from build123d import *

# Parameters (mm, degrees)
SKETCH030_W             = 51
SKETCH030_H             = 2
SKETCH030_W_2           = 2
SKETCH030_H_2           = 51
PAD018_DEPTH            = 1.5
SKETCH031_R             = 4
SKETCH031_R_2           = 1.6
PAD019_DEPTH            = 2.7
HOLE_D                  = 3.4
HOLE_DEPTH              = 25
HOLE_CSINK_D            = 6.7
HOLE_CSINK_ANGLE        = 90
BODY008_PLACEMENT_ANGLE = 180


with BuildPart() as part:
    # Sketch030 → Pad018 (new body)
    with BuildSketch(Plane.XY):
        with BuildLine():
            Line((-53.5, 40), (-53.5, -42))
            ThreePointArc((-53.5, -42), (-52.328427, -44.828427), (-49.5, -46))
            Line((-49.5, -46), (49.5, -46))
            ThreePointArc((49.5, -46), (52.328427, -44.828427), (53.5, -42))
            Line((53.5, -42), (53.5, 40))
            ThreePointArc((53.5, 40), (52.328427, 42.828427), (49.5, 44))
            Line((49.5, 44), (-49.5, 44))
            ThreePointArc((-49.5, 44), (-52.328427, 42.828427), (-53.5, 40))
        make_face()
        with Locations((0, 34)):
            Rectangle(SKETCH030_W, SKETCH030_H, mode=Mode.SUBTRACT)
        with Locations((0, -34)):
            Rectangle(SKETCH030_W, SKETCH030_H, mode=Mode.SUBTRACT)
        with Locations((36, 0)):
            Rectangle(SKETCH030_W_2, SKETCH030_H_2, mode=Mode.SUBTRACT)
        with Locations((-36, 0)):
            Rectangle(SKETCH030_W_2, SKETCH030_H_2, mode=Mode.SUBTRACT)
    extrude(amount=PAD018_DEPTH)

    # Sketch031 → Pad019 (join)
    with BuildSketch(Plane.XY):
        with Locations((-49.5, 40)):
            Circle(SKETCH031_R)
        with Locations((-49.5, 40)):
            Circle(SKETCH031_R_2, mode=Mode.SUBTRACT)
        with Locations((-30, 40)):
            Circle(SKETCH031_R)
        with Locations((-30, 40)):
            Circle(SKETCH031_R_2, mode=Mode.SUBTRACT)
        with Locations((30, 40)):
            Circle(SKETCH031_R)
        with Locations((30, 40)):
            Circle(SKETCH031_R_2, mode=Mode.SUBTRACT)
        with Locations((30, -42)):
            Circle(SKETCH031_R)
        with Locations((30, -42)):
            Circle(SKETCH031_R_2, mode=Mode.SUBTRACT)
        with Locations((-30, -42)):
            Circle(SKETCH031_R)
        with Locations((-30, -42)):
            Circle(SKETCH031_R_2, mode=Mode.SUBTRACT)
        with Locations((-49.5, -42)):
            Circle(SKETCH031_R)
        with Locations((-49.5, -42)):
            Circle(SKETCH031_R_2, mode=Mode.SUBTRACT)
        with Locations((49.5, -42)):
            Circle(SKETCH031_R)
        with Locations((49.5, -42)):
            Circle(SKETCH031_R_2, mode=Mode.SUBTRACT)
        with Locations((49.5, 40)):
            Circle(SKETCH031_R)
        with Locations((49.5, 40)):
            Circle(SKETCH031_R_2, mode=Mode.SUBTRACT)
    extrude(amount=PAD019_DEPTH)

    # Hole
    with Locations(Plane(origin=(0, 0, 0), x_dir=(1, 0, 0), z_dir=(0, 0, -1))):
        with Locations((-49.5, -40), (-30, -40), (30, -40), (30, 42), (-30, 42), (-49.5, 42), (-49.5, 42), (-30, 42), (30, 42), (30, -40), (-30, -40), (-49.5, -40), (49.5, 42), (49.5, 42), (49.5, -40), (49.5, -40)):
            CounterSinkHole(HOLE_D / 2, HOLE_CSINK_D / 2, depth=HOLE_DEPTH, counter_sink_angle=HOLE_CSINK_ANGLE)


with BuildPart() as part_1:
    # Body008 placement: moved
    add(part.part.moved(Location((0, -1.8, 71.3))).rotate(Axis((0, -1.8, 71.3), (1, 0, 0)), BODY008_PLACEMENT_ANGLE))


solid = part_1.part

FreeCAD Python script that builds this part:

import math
import FreeCAD as App
import Part
import Sketcher

V = App.Vector
Q = App.Units.Quantity


def add_polygon(sketch, points):
    """Adds a closed chain of lines whose ends are joined by coincident constraints."""
    first, n = sketch.GeometryCount, len(points)
    for a, b in zip(points, points[1:] + points[:1]):
        sketch.addGeometry(Part.LineSegment(App.Vector(*a, 0), App.Vector(*b, 0)), False)
    for i in range(n):
        sketch.addConstraint(Sketcher.Constraint("Coincident", first + i, 2, first + (i + 1) % n, 1))

doc = App.newDocument("Part")
body = doc.addObject("PartDesign::Body", "Body")

# Sketch on XY plane
sketch1 = body.newObject("Sketcher::SketchObject", "Sketch")
sketch1.AttachmentSupport = (doc.getObject("XY_Plane"), [""])
sketch1.MapMode = "FlatFace"
sketch1.addGeometry(Part.LineSegment(V(-53.5, 40, 0), V(-53.5, -42, 0)), False)  # 0
sketch1.addGeometry(Part.ArcOfCircle(Part.Circle(V(-49.5, -42, 0), V(0, 0, 1), 4), math.radians(-180), math.radians(-90)), False)  # 1
sketch1.addGeometry(Part.LineSegment(V(-49.5, -46, 0), V(49.5, -46, 0)), False)  # 2
sketch1.addGeometry(Part.ArcOfCircle(Part.Circle(V(49.5, -42, 0), V(0, 0, 1), 4), math.radians(-90), math.radians(0)), False)  # 3
sketch1.addGeometry(Part.LineSegment(V(53.5, -42, 0), V(53.5, 40, 0)), False)  # 4
sketch1.addGeometry(Part.ArcOfCircle(Part.Circle(V(49.5, 40, 0), V(0, 0, 1), 4), math.radians(0), math.radians(90)), False)  # 5
sketch1.addGeometry(Part.LineSegment(V(49.5, 44, 0), V(-49.5, 44, 0)), False)  # 6
sketch1.addGeometry(Part.ArcOfCircle(Part.Circle(V(-49.5, 40, 0), V(0, 0, 1), 4), math.radians(90), math.radians(180)), False)  # 7
add_polygon(sketch1, [(25.5, -35), (-25.5, -35), (-25.5, -33), (25.5, -33)])  # lines 8-11
add_polygon(sketch1, [(-35, -25.5), (-37, -25.5), (-37, 25.5), (-35, 25.5)])  # lines 12-15
add_polygon(sketch1, [(37, -25.5), (35, -25.5), (35, 25.5), (37, 25.5)])  # lines 16-19
add_polygon(sketch1, [(25.5, 33), (-25.5, 33), (-25.5, 35), (25.5, 35)])  # lines 20-23
sketch1.addConstraint([
    Sketcher.Constraint("Tangent", 0, 2, 1, 1),
    Sketcher.Constraint("Tangent", 1, 2, 2, 1),
    Sketcher.Constraint("Tangent", 2, 2, 3, 1),
    Sketcher.Constraint("Tangent", 3, 2, 4, 1),
    Sketcher.Constraint("Tangent", 4, 2, 5, 1),
    Sketcher.Constraint("Tangent", 5, 2, 6, 1),
    Sketcher.Constraint("Tangent", 6, 2, 7, 1),
    Sketcher.Constraint("Tangent", 7, 2, 0, 1),
    Sketcher.Constraint("Vertical", 0),
    Sketcher.Constraint("Horizontal", 2),
    Sketcher.Constraint("Vertical", 4),
    Sketcher.Constraint("Horizontal", 6),
    Sketcher.Constraint("Horizontal", 8),
    Sketcher.Constraint("Vertical", 9),
    Sketcher.Constraint("Horizontal", 10),
    Sketcher.Constraint("Vertical", 11),
    Sketcher.Constraint("Horizontal", 12),
    Sketcher.Constraint("Vertical", 13),
    Sketcher.Constraint("Horizontal", 14),
    Sketcher.Constraint("Vertical", 15),
    Sketcher.Constraint("Horizontal", 16),
    Sketcher.Constraint("Vertical", 17),
    Sketcher.Constraint("Horizontal", 18),
    Sketcher.Constraint("Vertical", 19),
    Sketcher.Constraint("Horizontal", 20),
    Sketcher.Constraint("Vertical", 21),
    Sketcher.Constraint("Horizontal", 22),
    Sketcher.Constraint("Vertical", 23),
    Sketcher.Constraint("Equal", 1, 3),
    Sketcher.Constraint("Equal", 3, 5),
    Sketcher.Constraint("Equal", 5, 7),
    Sketcher.Constraint("Symmetric", 14, 2, 16, 2, -1, 1),
    Sketcher.Constraint("Symmetric", 12, 2, 18, 2, -1, 1),
    Sketcher.Constraint("Symmetric", 10, 2, 20, 2, -1, 1),
    Sketcher.Constraint("Symmetric", 8, 2, 22, 2, -1, 1),
    Sketcher.Constraint("Horizontal", 15, 2, 16, 2),
    Sketcher.Constraint("Vertical", 9, 2, 20, 2),
    Sketcher.Constraint("Equal", 18, 9),
    Sketcher.Constraint("Equal", 22, 13),
    Sketcher.Constraint("Radius", 1, Q("4 mm")),
    Sketcher.Constraint("DistanceX", 2, 1, 2, 2, Q("99 mm")),
    Sketcher.Constraint("DistanceX", 8, 2, 8, 1, Q("51 mm")),
    Sketcher.Constraint("DistanceX", 12, 2, 12, 1, Q("2 mm")),
    Sketcher.Constraint("DistanceY", 0, 2, 0, 1, Q("82 mm")),
    Sketcher.Constraint("DistanceY", 1, 3, -1, 1, Q("42 mm")),
    Sketcher.Constraint("DistanceY", 8, 2, -1, 1, Q("35 mm")),
    Sketcher.Constraint("DistanceX", 12, 2, -1, 1, Q("37 mm")),
    Sketcher.Constraint("DistanceX", 1, 3, 8, 2, Q("24 mm")),
])
pad1 = body.newObject("PartDesign::Pad", "Pad")
pad1.Profile = sketch1
pad1.Length = 1.5

# Sketch on XY plane
sketch2 = body.newObject("Sketcher::SketchObject", "Sketch001")
sketch2.AttachmentSupport = (doc.getObject("XY_Plane"), [""])
sketch2.MapMode = "FlatFace"
sketch2.addGeometry([
    Part.Circle(V(-49.5, 40, 0), V(0, 0, 1), 4),  # 0
    Part.Circle(V(-49.5, 40, 0), V(0, 0, 1), 1.6),  # 1
    Part.Circle(V(-30, 40, 0), V(0, 0, 1), 4),  # 2
    Part.Circle(V(-30, 40, 0), V(0, 0, 1), 1.6),  # 3
    Part.Circle(V(30, 40, 0), V(0, 0, 1), 4),  # 4
    Part.Circle(V(30, 40, 0), V(0, 0, 1), 1.6),  # 5
    Part.Circle(V(30, -42, 0), V(0, 0, 1), 4),  # 6
    Part.Circle(V(30, -42, 0), V(0, 0, 1), 1.6),  # 7
    Part.Circle(V(-30, -42, 0), V(0, 0, 1), 4),  # 8
    Part.Circle(V(-30, -42, 0), V(0, 0, 1), 1.6),  # 9
    Part.Circle(V(-49.5, -42, 0), V(0, 0, 1), 4),  # 10
    Part.Circle(V(-49.5, -42, 0), V(0, 0, 1), 1.6),  # 11
    Part.Circle(V(49.5, -42, 0), V(0, 0, 1), 4),  # 12
    Part.Circle(V(49.5, -42, 0), V(0, 0, 1), 1.6),  # 13
    Part.Circle(V(49.5, 40, 0), V(0, 0, 1), 4),  # 14
    Part.Circle(V(49.5, 40, 0), V(0, 0, 1), 1.6),  # 15
], False)
sketch2.addConstraint([
    Sketcher.Constraint("Coincident", 1, 3, 0, 3),
    Sketcher.Constraint("Coincident", 3, 3, 2, 3),
    Sketcher.Constraint("Coincident", 5, 3, 4, 3),
    Sketcher.Constraint("Coincident", 7, 3, 6, 3),
    Sketcher.Constraint("Coincident", 9, 3, 8, 3),
    Sketcher.Constraint("Coincident", 11, 3, 10, 3),
    Sketcher.Constraint("Coincident", 13, 3, 12, 3),
    Sketcher.Constraint("Coincident", 15, 3, 14, 3),
    Sketcher.Constraint("Equal", 0, 2),
    Sketcher.Constraint("Equal", 1, 3),
    Sketcher.Constraint("Equal", 2, 4),
    Sketcher.Constraint("Equal", 3, 5),
    Sketcher.Constraint("Equal", 4, 6),
    Sketcher.Constraint("Equal", 5, 7),
    Sketcher.Constraint("Equal", 6, 8),
    Sketcher.Constraint("Equal", 7, 9),
    Sketcher.Constraint("Equal", 8, 10),
    Sketcher.Constraint("Equal", 9, 11),
    Sketcher.Constraint("Equal", 10, 12),
    Sketcher.Constraint("Equal", 11, 13),
    Sketcher.Constraint("Equal", 12, 14),
    Sketcher.Constraint("Equal", 13, 15),
    Sketcher.Constraint("Symmetric", 2, 3, 4, 3, -2),
    Sketcher.Constraint("Symmetric", 6, 3, 8, 3, -2),
    Sketcher.Constraint("Symmetric", 10, 3, 12, 3, -2),
    Sketcher.Constraint("Symmetric", 0, 3, 14, 3, -2),
    Sketcher.Constraint("Horizontal", 1, 3, 2, 3),
    Sketcher.Constraint("Horizontal", 9, 3, 10, 3),
    Sketcher.Constraint("Vertical", 5, 3, 6, 3),
    Sketcher.Constraint("Vertical", 1, 3, 10, 3),
    Sketcher.Constraint("Diameter", 0, Q("8 mm")),
    Sketcher.Constraint("Diameter", 1, Q("3.2 mm")),
    Sketcher.Constraint("DistanceY", -1, 1, 0, 3, Q("40 mm")),
    Sketcher.Constraint("DistanceX", 2, 3, -1, 1, Q("30 mm")),
    Sketcher.Constraint("DistanceY", 6, 3, -1, 1, Q("42 mm")),
    Sketcher.Constraint("DistanceX", 0, 3, -1, 1, Q("49.5 mm")),
])
pad2 = body.newObject("PartDesign::Pad", "Pad001")
pad2.Profile = sketch2
pad2.Length = 2.7

# Sketch on XY plane
sketch3 = body.newObject("Sketcher::SketchObject", "Sketch002")
sketch3.AttachmentSupport = (doc.getObject("XY_Plane"), [""])
sketch3.MapMode = "FlatFace"
sketch3.addGeometry([
    Part.Circle(V(-49.5, 40, 0), V(0, 0, 1), 1.7),  # 0
    Part.Circle(V(-30, 40, 0), V(0, 0, 1), 1.7),  # 1
    Part.Circle(V(30, 40, 0), V(0, 0, 1), 1.7),  # 2
    Part.Circle(V(30, -42, 0), V(0, 0, 1), 1.7),  # 3
    Part.Circle(V(-30, -42, 0), V(0, 0, 1), 1.7),  # 4
    Part.Circle(V(-49.5, -42, 0), V(0, 0, 1), 1.7),  # 5
    Part.Circle(V(-49.5, -42, 0), V(0, 0, 1), 1.7),  # 6
    Part.Circle(V(-30, -42, 0), V(0, 0, 1), 1.7),  # 7
    Part.Circle(V(30, -42, 0), V(0, 0, 1), 1.7),  # 8
    Part.Circle(V(30, 40, 0), V(0, 0, 1), 1.7),  # 9
    Part.Circle(V(-30, 40, 0), V(0, 0, 1), 1.7),  # 10
    Part.Circle(V(-49.5, 40, 0), V(0, 0, 1), 1.7),  # 11
    Part.Circle(V(49.5, -42, 0), V(0, 0, 1), 1.7),  # 12
    Part.Circle(V(49.5, -42, 0), V(0, 0, 1), 1.7),  # 13
    Part.Circle(V(49.5, 40, 0), V(0, 0, 1), 1.7),  # 14
    Part.Circle(V(49.5, 40, 0), V(0, 0, 1), 1.7),  # 15
], False)
sketch3.addConstraint([
    Sketcher.Constraint("Coincident", 6, 3, 5, 3),
    Sketcher.Constraint("Coincident", 7, 3, 4, 3),
    Sketcher.Constraint("Coincident", 8, 3, 3, 3),
    Sketcher.Constraint("Coincident", 9, 3, 2, 3),
    Sketcher.Constraint("Coincident", 10, 3, 1, 3),
    Sketcher.Constraint("Coincident", 11, 3, 0, 3),
    Sketcher.Constraint("Coincident", 13, 3, 12, 3),
    Sketcher.Constraint("Coincident", 15, 3, 14, 3),
    Sketcher.Constraint("Equal", 0, 1),
    Sketcher.Constraint("Equal", 1, 2),
    Sketcher.Constraint("Equal", 2, 3),
    Sketcher.Constraint("Equal", 3, 4),
    Sketcher.Constraint("Equal", 4, 5),
    Sketcher.Constraint("Equal", 5, 6),
    Sketcher.Constraint("Equal", 6, 7),
    Sketcher.Constraint("Equal", 7, 8),
    Sketcher.Constraint("Equal", 8, 9),
    Sketcher.Constraint("Equal", 9, 10),
    Sketcher.Constraint("Equal", 10, 11),
    Sketcher.Constraint("Equal", 11, 12),
    Sketcher.Constraint("Equal", 12, 13),
    Sketcher.Constraint("Equal", 13, 14),
    Sketcher.Constraint("Equal", 14, 15),
    Sketcher.Constraint("Symmetric", 1, 3, 2, 3, -2),
    Sketcher.Constraint("Symmetric", 3, 3, 4, 3, -2),
    Sketcher.Constraint("Symmetric", 5, 3, 12, 3, -2),
    Sketcher.Constraint("Symmetric", 0, 3, 14, 3, -2),
    Sketcher.Constraint("Horizontal", 0, 3, 1, 3),
    Sketcher.Constraint("Horizontal", 4, 3, 5, 3),
    Sketcher.Constraint("Vertical", 2, 3, 3, 3),
    Sketcher.Constraint("Vertical", 0, 3, 5, 3),
    Sketcher.Constraint("Diameter", 0, Q("3.4 mm")),
    Sketcher.Constraint("DistanceY", -1, 1, 0, 3, Q("40 mm")),
    Sketcher.Constraint("DistanceX", 1, 3, -1, 1, Q("30 mm")),
    Sketcher.Constraint("DistanceY", 3, 3, -1, 1, Q("42 mm")),
    Sketcher.Constraint("DistanceX", 0, 3, -1, 1, Q("49.5 mm")),
])
doc.recompute()
hole = body.newObject("PartDesign::Hole", "Hole")
hole.Profile = sketch3
hole.ThreadType = "None"
hole.Diameter = 3.4
hole.DepthType = "Dimension"
hole.Depth = 25
hole.DrillPoint = "Flat"
hole.HoleCutType = "Countersink"
hole.HoleCutDiameter = 6.7
hole.HoleCutCountersinkAngle = 90
hole.Reversed = True
body2 = doc.addObject("PartDesign::Body", "Body001")
doc.recompute()

body.Placement = App.Placement(V(0, -1.8, 71.3), App.Rotation(V(1, 0, 0), 180))
boolean = body2.newObject("PartDesign::Boolean", "Boolean")
boolean.Type = "Fuse"
boolean.addObjects([body])

doc.recompute()
